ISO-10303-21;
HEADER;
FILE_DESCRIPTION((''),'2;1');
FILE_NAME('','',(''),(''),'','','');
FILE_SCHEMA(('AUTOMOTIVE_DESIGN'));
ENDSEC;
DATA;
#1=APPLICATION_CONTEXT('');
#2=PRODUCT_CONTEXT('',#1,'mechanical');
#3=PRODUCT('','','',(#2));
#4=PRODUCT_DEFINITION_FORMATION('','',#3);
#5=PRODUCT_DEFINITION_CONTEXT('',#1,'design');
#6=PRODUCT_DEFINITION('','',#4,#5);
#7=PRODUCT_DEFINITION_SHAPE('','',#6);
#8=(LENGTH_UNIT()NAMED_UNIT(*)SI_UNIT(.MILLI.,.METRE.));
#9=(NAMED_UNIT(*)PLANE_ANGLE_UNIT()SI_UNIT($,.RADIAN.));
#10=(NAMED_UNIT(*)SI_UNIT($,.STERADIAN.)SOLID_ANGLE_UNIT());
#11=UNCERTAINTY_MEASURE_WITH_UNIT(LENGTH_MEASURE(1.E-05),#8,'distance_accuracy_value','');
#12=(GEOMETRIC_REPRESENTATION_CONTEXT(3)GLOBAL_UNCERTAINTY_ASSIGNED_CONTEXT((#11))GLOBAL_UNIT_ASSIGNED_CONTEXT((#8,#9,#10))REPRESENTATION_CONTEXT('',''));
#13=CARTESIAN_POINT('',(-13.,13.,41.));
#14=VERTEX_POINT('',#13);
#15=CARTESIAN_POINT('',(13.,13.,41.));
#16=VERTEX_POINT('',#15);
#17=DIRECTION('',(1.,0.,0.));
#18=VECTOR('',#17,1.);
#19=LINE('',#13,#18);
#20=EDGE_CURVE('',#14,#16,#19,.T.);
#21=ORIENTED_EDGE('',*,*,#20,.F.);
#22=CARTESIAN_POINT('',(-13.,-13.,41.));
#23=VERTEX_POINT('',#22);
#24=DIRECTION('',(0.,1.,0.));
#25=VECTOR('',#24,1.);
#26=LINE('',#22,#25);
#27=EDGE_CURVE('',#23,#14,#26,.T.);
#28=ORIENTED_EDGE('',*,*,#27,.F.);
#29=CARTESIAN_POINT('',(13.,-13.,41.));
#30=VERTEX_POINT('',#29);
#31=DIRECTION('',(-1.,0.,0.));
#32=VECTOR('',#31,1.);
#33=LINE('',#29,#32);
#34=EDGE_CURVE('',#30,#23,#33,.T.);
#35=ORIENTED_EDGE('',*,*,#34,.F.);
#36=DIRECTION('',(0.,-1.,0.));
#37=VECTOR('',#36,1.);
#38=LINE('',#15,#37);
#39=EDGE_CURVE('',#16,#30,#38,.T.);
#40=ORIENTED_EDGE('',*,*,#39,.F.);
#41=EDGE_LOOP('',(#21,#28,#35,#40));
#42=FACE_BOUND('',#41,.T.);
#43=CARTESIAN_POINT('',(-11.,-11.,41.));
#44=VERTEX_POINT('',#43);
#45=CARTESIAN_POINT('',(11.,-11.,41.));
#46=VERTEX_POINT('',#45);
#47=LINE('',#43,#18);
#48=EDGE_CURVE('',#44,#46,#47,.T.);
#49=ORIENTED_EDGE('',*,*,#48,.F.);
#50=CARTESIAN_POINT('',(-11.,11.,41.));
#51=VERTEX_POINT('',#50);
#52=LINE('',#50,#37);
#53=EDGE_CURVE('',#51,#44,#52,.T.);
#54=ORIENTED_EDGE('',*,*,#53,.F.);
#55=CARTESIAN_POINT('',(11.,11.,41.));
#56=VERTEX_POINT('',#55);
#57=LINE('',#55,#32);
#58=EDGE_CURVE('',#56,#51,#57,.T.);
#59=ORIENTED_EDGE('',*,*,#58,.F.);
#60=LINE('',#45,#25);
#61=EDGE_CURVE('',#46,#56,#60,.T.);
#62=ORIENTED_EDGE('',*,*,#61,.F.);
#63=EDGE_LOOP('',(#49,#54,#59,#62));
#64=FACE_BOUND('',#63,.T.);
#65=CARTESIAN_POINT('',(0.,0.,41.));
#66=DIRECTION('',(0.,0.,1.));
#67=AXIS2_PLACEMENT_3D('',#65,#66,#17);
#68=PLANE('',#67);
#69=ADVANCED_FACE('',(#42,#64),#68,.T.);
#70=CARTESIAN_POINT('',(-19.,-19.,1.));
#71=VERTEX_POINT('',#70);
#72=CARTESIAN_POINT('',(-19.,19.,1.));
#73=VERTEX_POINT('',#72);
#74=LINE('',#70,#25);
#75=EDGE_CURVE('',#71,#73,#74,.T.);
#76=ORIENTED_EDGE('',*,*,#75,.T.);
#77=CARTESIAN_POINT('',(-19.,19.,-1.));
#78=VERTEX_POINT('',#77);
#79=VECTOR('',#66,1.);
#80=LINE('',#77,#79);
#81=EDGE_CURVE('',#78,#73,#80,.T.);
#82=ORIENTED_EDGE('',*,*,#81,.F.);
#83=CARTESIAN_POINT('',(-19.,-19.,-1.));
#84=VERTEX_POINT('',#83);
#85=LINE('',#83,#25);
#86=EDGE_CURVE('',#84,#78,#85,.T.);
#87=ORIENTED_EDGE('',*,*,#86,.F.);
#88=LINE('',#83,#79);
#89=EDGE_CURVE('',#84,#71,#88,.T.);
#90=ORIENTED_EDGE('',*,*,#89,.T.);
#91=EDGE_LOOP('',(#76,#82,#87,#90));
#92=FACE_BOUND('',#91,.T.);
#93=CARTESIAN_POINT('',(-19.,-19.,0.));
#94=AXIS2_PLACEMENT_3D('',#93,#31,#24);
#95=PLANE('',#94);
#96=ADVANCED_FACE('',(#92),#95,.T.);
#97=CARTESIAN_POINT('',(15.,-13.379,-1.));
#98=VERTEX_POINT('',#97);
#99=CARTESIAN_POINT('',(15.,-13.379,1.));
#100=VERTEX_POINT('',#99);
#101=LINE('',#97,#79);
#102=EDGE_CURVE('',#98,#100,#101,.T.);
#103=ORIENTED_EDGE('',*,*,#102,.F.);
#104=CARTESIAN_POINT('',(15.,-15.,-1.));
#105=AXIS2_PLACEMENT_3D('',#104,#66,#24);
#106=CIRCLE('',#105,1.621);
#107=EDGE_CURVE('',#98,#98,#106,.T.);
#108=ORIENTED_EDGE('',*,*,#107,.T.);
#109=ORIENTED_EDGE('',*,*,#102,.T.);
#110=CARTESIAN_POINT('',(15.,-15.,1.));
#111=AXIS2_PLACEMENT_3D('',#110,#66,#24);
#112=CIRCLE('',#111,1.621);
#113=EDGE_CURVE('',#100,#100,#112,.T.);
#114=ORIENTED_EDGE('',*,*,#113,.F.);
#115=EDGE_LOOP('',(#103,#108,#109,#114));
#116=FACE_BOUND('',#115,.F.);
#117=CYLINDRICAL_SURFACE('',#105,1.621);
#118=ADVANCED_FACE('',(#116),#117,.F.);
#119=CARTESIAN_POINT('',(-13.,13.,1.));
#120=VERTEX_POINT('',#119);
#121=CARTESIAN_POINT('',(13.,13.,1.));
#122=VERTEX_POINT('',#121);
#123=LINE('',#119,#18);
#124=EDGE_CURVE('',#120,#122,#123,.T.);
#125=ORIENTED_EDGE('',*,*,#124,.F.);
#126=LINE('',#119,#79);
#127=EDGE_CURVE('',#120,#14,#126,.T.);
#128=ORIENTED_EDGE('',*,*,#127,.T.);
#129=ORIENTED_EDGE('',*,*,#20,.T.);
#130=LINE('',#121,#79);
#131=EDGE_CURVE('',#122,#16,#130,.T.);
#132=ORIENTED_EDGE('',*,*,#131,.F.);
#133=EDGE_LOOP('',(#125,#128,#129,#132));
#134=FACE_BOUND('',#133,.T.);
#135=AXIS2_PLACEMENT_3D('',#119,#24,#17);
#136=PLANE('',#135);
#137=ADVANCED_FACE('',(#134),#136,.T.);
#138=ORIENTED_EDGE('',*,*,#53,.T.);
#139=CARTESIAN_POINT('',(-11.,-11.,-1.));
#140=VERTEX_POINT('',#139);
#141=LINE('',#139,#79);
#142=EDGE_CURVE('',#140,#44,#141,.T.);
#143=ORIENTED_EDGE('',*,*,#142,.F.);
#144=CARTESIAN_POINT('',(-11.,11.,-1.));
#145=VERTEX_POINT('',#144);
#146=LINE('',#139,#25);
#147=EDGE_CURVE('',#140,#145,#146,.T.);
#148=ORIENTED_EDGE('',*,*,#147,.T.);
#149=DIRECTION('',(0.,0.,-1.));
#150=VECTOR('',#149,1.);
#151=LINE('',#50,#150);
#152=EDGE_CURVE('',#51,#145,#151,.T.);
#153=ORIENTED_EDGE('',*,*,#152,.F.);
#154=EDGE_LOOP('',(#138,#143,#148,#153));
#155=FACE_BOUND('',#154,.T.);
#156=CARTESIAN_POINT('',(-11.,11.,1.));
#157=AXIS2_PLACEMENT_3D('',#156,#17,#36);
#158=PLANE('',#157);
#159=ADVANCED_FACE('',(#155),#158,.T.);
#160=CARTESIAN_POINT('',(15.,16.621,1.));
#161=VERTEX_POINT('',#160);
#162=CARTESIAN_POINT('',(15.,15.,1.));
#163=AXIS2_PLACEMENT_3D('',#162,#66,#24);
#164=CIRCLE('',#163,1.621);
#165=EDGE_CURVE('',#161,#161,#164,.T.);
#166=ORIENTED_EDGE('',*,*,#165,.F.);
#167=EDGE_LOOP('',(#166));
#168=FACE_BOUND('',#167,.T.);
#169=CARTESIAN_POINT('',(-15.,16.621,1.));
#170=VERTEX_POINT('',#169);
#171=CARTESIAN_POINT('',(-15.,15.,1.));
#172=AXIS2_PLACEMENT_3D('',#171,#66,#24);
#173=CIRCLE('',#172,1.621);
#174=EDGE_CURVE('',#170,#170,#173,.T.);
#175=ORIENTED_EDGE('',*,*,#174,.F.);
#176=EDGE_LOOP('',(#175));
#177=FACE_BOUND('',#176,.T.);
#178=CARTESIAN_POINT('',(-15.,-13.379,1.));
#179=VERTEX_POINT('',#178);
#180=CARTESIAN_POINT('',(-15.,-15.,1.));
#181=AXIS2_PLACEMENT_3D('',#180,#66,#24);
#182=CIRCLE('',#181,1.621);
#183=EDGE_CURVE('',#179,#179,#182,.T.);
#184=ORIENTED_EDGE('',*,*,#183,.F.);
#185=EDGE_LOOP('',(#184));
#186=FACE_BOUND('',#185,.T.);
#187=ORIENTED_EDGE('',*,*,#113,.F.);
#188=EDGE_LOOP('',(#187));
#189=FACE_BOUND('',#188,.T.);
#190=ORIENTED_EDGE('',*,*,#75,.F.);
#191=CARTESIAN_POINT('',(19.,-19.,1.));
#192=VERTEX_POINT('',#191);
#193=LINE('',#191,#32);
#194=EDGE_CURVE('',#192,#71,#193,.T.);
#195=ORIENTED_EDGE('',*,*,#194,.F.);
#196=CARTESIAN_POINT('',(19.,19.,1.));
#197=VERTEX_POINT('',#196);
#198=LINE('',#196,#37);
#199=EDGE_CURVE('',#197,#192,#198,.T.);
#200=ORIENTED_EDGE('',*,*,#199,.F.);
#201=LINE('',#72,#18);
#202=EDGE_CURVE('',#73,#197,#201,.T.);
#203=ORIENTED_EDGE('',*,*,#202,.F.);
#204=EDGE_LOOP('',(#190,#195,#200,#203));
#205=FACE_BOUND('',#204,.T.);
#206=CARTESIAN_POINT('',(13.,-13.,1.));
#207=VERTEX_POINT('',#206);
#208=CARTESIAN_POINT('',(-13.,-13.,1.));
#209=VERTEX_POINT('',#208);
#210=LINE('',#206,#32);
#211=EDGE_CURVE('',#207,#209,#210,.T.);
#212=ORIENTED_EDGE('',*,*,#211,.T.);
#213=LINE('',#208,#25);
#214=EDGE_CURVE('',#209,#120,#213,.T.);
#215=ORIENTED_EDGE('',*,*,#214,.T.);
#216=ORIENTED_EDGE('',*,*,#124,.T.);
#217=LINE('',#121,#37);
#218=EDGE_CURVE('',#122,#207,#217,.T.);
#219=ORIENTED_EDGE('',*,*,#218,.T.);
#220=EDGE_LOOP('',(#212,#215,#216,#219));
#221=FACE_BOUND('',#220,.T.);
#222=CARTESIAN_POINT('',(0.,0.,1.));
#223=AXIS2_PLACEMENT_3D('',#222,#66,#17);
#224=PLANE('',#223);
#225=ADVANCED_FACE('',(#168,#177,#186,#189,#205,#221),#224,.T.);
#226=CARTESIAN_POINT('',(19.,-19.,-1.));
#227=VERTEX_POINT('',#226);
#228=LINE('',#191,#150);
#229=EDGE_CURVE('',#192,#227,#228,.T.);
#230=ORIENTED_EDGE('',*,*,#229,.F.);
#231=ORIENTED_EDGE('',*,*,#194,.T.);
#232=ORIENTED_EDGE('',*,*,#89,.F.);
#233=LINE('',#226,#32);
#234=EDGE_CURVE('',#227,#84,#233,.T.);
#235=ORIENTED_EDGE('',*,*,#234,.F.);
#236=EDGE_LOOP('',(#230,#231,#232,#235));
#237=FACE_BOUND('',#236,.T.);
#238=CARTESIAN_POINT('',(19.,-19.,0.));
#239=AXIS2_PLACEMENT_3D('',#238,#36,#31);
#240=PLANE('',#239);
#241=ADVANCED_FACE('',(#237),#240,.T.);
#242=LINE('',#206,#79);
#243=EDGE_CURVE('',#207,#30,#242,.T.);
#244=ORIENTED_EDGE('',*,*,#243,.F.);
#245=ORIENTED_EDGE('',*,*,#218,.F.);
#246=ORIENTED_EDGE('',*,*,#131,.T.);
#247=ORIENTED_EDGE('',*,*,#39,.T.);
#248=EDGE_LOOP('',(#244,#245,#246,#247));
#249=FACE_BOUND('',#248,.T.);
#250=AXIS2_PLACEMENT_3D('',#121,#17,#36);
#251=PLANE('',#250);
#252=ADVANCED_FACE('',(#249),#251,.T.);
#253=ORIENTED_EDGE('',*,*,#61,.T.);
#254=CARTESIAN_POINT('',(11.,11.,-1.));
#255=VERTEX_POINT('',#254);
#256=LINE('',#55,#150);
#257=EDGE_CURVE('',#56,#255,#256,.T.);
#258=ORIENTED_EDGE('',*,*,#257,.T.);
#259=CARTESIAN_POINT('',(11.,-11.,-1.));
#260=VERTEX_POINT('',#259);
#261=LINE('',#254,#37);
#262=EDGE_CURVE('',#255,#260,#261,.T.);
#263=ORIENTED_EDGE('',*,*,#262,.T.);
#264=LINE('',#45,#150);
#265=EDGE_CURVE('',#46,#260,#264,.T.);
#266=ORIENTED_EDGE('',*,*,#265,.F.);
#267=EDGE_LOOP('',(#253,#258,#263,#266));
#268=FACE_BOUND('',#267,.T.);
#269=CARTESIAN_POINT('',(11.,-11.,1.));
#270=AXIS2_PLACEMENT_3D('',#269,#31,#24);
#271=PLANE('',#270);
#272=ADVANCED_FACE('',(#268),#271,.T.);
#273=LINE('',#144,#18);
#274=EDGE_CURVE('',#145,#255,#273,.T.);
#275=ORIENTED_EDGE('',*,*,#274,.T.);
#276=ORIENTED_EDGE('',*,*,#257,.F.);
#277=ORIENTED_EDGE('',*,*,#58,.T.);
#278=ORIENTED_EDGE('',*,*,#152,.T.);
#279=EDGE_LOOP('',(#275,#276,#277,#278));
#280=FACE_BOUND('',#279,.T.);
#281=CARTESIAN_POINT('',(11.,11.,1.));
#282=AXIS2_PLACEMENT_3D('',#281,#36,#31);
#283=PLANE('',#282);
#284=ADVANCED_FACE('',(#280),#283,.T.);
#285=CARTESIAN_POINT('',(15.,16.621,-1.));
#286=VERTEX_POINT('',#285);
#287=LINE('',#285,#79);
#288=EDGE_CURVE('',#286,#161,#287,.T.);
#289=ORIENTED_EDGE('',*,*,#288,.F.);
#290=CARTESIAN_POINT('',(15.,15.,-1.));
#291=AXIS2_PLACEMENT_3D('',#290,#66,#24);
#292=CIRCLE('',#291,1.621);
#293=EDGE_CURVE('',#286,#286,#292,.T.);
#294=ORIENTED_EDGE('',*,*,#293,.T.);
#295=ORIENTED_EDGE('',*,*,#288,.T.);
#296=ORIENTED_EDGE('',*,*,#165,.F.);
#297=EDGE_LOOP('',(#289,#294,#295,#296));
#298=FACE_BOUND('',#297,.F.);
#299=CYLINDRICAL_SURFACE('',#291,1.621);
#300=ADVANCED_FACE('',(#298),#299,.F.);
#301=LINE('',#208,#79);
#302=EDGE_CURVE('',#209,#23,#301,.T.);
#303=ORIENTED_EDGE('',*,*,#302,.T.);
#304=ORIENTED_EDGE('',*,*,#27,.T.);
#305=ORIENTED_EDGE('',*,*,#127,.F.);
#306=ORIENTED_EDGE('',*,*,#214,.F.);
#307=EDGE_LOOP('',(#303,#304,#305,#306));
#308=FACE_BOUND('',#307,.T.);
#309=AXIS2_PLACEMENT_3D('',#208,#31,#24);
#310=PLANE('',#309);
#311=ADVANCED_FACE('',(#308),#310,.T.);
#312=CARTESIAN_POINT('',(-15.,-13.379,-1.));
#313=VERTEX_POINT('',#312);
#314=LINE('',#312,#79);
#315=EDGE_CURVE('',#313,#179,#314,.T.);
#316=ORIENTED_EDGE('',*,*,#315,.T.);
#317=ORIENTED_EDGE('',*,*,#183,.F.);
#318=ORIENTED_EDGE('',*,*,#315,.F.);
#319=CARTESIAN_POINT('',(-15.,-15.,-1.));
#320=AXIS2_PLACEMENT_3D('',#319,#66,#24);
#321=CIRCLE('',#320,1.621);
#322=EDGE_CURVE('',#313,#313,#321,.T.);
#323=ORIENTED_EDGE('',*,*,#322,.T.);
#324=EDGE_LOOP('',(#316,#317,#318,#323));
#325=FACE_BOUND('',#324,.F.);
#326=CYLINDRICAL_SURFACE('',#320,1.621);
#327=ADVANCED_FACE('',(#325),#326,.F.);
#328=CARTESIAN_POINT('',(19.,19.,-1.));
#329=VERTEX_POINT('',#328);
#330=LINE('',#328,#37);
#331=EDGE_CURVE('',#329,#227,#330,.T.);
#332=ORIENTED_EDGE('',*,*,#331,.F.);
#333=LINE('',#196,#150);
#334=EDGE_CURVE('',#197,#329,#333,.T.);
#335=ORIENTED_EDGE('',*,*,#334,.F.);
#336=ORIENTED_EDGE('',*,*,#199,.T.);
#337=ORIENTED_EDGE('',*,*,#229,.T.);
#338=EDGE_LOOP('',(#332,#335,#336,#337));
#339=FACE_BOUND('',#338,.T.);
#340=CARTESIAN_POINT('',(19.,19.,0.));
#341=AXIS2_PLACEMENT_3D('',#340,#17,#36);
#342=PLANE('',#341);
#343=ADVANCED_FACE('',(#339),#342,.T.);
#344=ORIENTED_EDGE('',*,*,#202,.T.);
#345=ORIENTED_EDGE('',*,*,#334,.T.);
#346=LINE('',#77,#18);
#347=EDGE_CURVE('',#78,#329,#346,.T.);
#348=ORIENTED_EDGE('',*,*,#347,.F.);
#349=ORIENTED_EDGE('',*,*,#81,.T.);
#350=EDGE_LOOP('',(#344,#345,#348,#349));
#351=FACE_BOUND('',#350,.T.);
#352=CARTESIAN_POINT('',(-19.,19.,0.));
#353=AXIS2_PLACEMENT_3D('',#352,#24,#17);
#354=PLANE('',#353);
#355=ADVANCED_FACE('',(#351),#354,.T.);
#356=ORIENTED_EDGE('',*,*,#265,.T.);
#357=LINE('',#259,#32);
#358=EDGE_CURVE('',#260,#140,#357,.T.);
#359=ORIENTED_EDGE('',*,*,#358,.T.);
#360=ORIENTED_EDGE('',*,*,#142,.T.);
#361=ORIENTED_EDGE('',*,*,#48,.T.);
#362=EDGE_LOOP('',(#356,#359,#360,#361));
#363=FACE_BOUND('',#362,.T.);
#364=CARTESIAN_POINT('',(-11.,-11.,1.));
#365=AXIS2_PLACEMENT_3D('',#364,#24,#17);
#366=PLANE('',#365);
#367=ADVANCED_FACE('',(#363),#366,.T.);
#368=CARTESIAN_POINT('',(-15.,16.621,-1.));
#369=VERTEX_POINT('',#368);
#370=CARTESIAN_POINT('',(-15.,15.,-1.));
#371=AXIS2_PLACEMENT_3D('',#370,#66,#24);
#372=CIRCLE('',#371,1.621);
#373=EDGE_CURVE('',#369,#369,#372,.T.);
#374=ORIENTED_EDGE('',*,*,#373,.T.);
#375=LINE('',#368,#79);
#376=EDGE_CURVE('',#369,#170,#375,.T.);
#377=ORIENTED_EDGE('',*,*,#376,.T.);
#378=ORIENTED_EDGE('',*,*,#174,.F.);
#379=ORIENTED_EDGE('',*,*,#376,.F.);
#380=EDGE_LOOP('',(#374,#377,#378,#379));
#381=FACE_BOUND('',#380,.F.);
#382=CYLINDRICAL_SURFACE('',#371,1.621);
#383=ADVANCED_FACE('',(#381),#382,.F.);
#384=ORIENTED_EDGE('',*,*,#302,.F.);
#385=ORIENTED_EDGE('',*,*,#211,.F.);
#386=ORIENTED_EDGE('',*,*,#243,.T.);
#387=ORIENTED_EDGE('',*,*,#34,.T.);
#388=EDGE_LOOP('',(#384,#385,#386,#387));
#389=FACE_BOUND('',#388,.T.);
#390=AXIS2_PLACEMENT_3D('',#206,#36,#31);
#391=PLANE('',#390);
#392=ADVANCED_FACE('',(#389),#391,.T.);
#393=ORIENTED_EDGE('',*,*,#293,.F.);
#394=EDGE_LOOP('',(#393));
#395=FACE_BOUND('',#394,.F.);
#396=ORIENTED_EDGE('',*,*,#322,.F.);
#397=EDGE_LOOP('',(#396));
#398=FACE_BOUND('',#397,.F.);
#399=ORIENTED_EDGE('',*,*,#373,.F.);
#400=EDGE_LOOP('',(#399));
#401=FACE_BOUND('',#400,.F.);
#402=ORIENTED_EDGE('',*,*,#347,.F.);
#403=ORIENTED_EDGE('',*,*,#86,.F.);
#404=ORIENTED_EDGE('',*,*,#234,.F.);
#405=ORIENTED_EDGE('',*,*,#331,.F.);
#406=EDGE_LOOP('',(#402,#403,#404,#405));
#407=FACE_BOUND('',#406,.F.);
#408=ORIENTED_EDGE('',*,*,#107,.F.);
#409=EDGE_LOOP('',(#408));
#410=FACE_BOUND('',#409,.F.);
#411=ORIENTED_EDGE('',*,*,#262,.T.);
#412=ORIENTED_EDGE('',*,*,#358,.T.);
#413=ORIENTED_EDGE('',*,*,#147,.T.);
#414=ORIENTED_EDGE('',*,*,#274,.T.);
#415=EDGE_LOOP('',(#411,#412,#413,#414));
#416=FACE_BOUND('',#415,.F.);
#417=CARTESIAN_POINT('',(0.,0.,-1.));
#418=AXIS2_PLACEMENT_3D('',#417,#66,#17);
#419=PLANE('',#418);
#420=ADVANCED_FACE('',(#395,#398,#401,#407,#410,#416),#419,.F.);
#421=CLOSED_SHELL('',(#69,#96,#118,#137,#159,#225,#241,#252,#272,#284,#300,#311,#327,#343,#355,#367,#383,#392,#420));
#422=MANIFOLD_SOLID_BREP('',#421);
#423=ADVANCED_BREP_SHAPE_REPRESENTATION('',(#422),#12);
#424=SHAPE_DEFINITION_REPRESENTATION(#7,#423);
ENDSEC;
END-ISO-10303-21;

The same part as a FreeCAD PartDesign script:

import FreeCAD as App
import Part
import Sketcher
Q = App.Units.Quantity


def add_polygon(sketch, points):
    """Adds a closed chain of lines whose ends are joined by coincident constraints."""
    first, n = sketch.GeometryCount, len(points)
    for a, b in zip(points, points[1:] + points[:1]):
        sketch.addGeometry(Part.LineSegment(App.Vector(*a, 0), App.Vector(*b, 0)), False)
    for i in range(n):
        sketch.addConstraint(Sketcher.Constraint("Coincident", first + i, 2, first + (i + 1) % n, 1))

doc = App.newDocument("Part")
params = doc.addObject("Spreadsheet::Sheet", "Params")
for row, (alias, value) in enumerate([
    ("sketch1_width", "38 mm"),
    ("sketch1_width2", "22 mm"),
    ("pad1_length", "2 mm"),
    ("sketch2_width", "26 mm"),
    ("sketch2_width2", "22 mm"),
    ("pad2_length", "40 mm"),
    ("hole_diameter", "3.242 mm"),
], start=1):
    params.set(f"A{row}", alias)
    params.set(f"B{row}", "=" + value)
    params.setAlias(f"B{row}", alias)

body = doc.addObject("PartDesign::Body", "Body")

sketch1 = body.newObject("Sketcher::SketchObject", "Sketch")
sketch1.AttachmentSupport = (doc.getObject("XY_Plane"), [""])
sketch1.MapMode = "FlatFace"
add_polygon(sketch1, [(19, 19), (-19, 19), (-19, -19), (19, -19)])
add_polygon(sketch1, [(-11, -11), (-11, 11), (11, 11), (11, -11)])
sketch1.addConstraint([
    Sketcher.Constraint("Horizontal", 0),
    Sketcher.Constraint("Vertical", 1),
    Sketcher.Constraint("Horizontal", 2),
    Sketcher.Constraint("Vertical", 3),
    Sketcher.Constraint("Vertical", 4),
    Sketcher.Constraint("Horizontal", 5),
    Sketcher.Constraint("Vertical", 6),
    Sketcher.Constraint("Horizontal", 7),
    Sketcher.Constraint("Symmetric", 0, 2, 2, 2, -1, 1),
    Sketcher.Constraint("Symmetric", 4, 2, 6, 2, -1, 1),
    Sketcher.Constraint("Equal", 2, 1),
    Sketcher.Constraint("Equal", 7, 4),
    Sketcher.Constraint("DistanceX", 0, 2, 0, 1, Q("38 mm")),
    Sketcher.Constraint("DistanceX", 5, 1, 5, 2, Q("22 mm")),
])
sketch1.setExpression("Constraints[20]", "Params.sketch1_width")
sketch1.setExpression("Constraints[21]", "Params.sketch1_width2")
pad1 = body.newObject("PartDesign::Pad", "Pad")
pad1.Profile = sketch1
pad1.setExpression("Length", "Params.pad1_length")
pad1.Midplane = True

sketch2 = body.newObject("Sketcher::SketchObject", "Sketch001")
sketch2.AttachmentSupport = (doc.getObject("XY_Plane"), [""])
sketch2.MapMode = "FlatFace"
sketch2.AttachmentOffset = App.Placement(App.Vector(0, 0, 1), App.Rotation())
add_polygon(sketch2, [(13, 13), (-13, 13), (-13, -13), (13, -13)])
add_polygon(sketch2, [(11, -11), (-11, -11), (-11, 11), (11, 11)])
sketch2.addConstraint([
    Sketcher.Constraint("Horizontal", 0),
    Sketcher.Constraint("Vertical", 1),
    Sketcher.Constraint("Horizontal", 2),
    Sketcher.Constraint("Vertical", 3),
    Sketcher.Constraint("Horizontal", 4),
    Sketcher.Constraint("Vertical", 5),
    Sketcher.Constraint("Horizontal", 6),
    Sketcher.Constraint("Vertical", 7),
    Sketcher.Constraint("Symmetric", 0, 2, 2, 2, -1, 1),
    Sketcher.Constraint("Symmetric", 4, 2, 6, 2, -1, 1),
    Sketcher.Constraint("Equal", 2, 1),
    Sketcher.Constraint("Equal", 6, 5),
    Sketcher.Constraint("DistanceX", 0, 2, 0, 1, Q("26 mm")),
    Sketcher.Constraint("DistanceX", 4, 2, 4, 1, Q("22 mm")),
])
sketch2.setExpression("Constraints[20]", "Params.sketch2_width")
sketch2.setExpression("Constraints[21]", "Params.sketch2_width2")
pad2 = body.newObject("PartDesign::Pad", "Pad001")
pad2.Profile = sketch2
pad2.setExpression("Length", "Params.pad2_length")

sketch3 = body.newObject("Sketcher::SketchObject", "Sketch002")
sketch3.AttachmentSupport = (doc.getObject("XY_Plane"), [""])
sketch3.MapMode = "FlatFace"
sketch3.AttachmentOffset = App.Placement(App.Vector(0, 0, -1), App.Rotation())
sketch3.addGeometry([
    Part.Circle(App.Vector(-15, -15, 0), App.Vector(0, 0, 1), 1.6),
    Part.Circle(App.Vector(15, -15, 0), App.Vector(0, 0, 1), 1.6),
    Part.Circle(App.Vector(-15, 15, 0), App.Vector(0, 0, 1), 1.6),
    Part.Circle(App.Vector(15, 15, 0), App.Vector(0, 0, 1), 1.6),
], False)
sketch3.addConstraint([
    Sketcher.Constraint("Equal", 0, 1),
    Sketcher.Constraint("Equal", 1, 2),
    Sketcher.Constraint("Equal", 2, 3),
    Sketcher.Constraint("Symmetric", 1, 3, 2, 3, -1, 1),
    Sketcher.Constraint("Symmetric", 0, 3, 3, 3, -1, 1),
    Sketcher.Constraint("Symmetric", 0, 3, 1, 3, -2),
    Sketcher.Constraint("Diameter", 0, Q("3.242 mm")),
    Sketcher.Constraint("DistanceX", 0, 3, -1, 1, Q("15 mm")),
    Sketcher.Constraint("DistanceY", 0, 3, -1, 1, Q("15 mm")),
])
doc.recompute()
hole = body.newObject("PartDesign::Hole", "Hole")
hole.Profile = sketch3
hole.ThreadType = "None"
hole.setExpression("Diameter", "Params.hole_diameter")
hole.DepthType = "ThroughAll"
hole.Reversed = True

doc.recompute()
